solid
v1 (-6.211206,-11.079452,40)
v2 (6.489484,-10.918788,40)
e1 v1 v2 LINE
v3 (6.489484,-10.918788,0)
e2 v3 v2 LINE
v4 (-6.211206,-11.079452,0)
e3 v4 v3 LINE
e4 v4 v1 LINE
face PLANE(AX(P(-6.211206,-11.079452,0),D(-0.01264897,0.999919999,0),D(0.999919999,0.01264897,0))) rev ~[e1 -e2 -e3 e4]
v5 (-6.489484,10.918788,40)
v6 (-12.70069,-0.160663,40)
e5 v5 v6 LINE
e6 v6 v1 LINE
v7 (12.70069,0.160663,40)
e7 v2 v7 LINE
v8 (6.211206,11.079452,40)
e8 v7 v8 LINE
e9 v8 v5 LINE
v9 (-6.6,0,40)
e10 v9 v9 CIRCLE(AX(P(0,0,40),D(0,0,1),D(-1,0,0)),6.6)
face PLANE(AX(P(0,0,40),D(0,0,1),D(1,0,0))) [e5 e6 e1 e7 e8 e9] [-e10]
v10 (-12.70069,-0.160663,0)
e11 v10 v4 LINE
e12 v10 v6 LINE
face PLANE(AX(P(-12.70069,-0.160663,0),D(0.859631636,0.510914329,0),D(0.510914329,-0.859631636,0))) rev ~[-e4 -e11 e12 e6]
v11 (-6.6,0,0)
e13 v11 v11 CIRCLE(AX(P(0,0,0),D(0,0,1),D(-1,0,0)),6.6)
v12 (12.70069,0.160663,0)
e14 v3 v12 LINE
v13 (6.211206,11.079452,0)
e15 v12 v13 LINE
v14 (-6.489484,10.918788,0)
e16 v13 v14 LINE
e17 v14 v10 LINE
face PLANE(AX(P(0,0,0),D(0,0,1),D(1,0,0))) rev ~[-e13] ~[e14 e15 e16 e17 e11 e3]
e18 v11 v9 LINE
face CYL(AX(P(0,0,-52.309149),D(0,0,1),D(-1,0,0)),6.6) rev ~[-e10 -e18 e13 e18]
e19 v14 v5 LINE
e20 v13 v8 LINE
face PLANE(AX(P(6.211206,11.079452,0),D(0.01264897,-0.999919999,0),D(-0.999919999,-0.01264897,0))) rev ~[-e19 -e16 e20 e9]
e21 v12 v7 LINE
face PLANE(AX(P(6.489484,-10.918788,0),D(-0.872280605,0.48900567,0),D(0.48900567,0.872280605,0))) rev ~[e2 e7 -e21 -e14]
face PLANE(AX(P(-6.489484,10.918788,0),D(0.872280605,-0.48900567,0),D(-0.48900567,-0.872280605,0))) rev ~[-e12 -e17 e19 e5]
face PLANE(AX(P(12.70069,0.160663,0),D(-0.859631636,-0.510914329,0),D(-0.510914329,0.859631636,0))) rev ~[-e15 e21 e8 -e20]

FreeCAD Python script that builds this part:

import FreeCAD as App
import Part
import Sketcher
Q = App.Units.Quantity


def add_polygon(sketch, points):
    """Adds a closed chain of lines whose ends are joined by coincident constraints."""
    first, n = sketch.GeometryCount, len(points)
    for a, b in zip(points, points[1:] + points[:1]):
        sketch.addGeometry(Part.LineSegment(App.Vector(*a, 0), App.Vector(*b, 0)), False)
    for i in range(n):
        sketch.addConstraint(Sketcher.Constraint("Coincident", first + i, 2, first + (i + 1) % n, 1))

doc = App.newDocument("Part")
params = doc.addObject("Spreadsheet::Sheet", "Params")
for row, (alias, value) in enumerate([
    ("pad1_length", "40 mm"),
    ("sketch2_diameter", "13.2 mm"),
    ("hole_diameter", "13.2 mm"),
], start=1):
    params.set(f"A{row}", alias)
    params.set(f"B{row}", "=" + value)
    params.setAlias(f"B{row}", alias)

body = doc.addObject("PartDesign::Body", "Body")

# Sketch on XY plane
sketch1 = body.newObject("Sketcher::SketchObject", "Sketch")
sketch1.AttachmentSupport = (doc.getObject("XY_Plane"), [""])
sketch1.MapMode = "FlatFace"
add_polygon(sketch1, [(-6.489484, 10.918788), (-12.70069, -0.160663), (-6.211206, -11.079452), (6.489484, -10.918788), (12.70069, 0.160663), (6.211206, 11.079452)])  # lines 0-5
sketch1.addConstraint(Sketcher.Constraint("Symmetric", 0, 2, 3, 2, -1, 1))
sketch1.addConstraint(Sketcher.Constraint("Symmetric", 1, 2, 4, 2, -1, 1))
sketch1.addConstraint(Sketcher.Constraint("Symmetric", 2, 2, 5, 2, -1, 1))
sketch1.addConstraint(Sketcher.Constraint("Equal", 0, 1))
sketch1.addConstraint(Sketcher.Constraint("Equal", 1, 2))
sketch1.addConstraint(Sketcher.Constraint("DistanceX", 0, 2, -1, 1, Q("12.70069 mm")))
sketch1.addConstraint(Sketcher.Constraint("DistanceY", 1, 2, -1, 1, Q("11.079452 mm")))
sketch1.addConstraint(Sketcher.Constraint("DistanceY", 2, 2, -1, 1, Q("10.918788 mm")))
sketch1.addConstraint(Sketcher.Constraint("DistanceY", 1, 2, 0, 2, Q("10.918788 mm")))
pad1 = body.newObject("PartDesign::Pad", "Pad")
pad1.Profile = sketch1
pad1.setExpression("Length", "Params.pad1_length")

# Sketch on XY plane
sketch2 = body.newObject("Sketcher::SketchObject", "Sketch001")
sketch2.AttachmentSupport = (doc.getObject("XY_Plane"), [""])
sketch2.MapMode = "FlatFace"
sketch2.addGeometry(Part.Circle(App.Vector(0, 0, 0), App.Vector(0, 0, 1), 6.6), False)
sketch2.addConstraint(Sketcher.Constraint("Coincident", 0, 3, -1, 1))
sketch2.addConstraint(Sketcher.Constraint("Diameter", 0, Q("13.2 mm")))
sketch2.setExpression("Constraints[1]", "Params.sketch2_diameter")
doc.recompute()
hole = body.newObject("PartDesign::Hole", "Hole")
hole.Profile = sketch2
hole.ThreadType = "None"
hole.setExpression("Diameter", "Params.hole_diameter")
hole.DepthType = "ThroughAll"
hole.Reversed = True

doc.recompute()
